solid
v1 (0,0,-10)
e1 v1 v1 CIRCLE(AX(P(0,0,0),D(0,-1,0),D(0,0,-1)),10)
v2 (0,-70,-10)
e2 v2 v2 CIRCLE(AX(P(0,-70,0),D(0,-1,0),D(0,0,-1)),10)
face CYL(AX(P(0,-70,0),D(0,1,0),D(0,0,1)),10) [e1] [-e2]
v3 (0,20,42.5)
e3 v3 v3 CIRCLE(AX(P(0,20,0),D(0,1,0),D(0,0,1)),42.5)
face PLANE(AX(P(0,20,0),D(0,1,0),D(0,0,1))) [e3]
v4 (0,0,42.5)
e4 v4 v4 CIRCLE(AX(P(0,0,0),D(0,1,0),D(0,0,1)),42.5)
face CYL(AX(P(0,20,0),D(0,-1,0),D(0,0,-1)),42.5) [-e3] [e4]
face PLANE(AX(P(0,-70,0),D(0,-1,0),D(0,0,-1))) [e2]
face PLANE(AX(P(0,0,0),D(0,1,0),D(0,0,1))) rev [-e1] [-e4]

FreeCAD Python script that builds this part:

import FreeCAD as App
import Part
import Sketcher
Q = App.Units.Quantity

doc = App.newDocument("Part")
params = doc.addObject("Spreadsheet::Sheet", "Params")
for row, (alias, value) in enumerate([
    ("sketch1_diameter", "85 mm"),
    ("pad1_length", "20 mm"),
    ("sketch2_diameter", "20 mm"),
    ("pad2_length", "70 mm"),
], start=1):
    params.set(f"A{row}", alias)
    params.set(f"B{row}", "=" + value)
    params.setAlias(f"B{row}", alias)

body = doc.addObject("PartDesign::Body", "Body")

sketch1 = body.newObject("Sketcher::SketchObject", "Sketch")
sketch1.AttachmentSupport = (doc.getObject("XZ_Plane"), [""])
sketch1.MapMode = "FlatFace"
sketch1.addGeometry(Part.Circle(App.Vector(0, 0, 0), App.Vector(0, 0, 1), 42.5), False)
sketch1.addConstraint(Sketcher.Constraint("Coincident", 0, 3, -1, 1))
sketch1.addConstraint(Sketcher.Constraint("Diameter", 0, Q("85 mm")))
sketch1.setExpression("Constraints[1]", "Params.sketch1_diameter")
pad1 = body.newObject("PartDesign::Pad", "Pad")
pad1.Profile = sketch1
pad1.setExpression("Length", "Params.pad1_length")
pad1.Reversed = True

sketch2 = body.newObject("Sketcher::SketchObject", "Sketch001")
sketch2.AttachmentSupport = (doc.getObject("XZ_Plane"), [""])
sketch2.MapMode = "FlatFace"
sketch2.addGeometry(Part.Circle(App.Vector(0, 0, 0), App.Vector(0, 0, 1), 10), False)
sketch2.addConstraint(Sketcher.Constraint("Coincident", 0, 3, -1, 1))
sketch2.addConstraint(Sketcher.Constraint("Diameter", 0, Q("20 mm")))
sketch2.setExpression("Constraints[1]", "Params.sketch2_diameter")
pad2 = body.newObject("PartDesign::Pad", "Pad001")
pad2.Profile = sketch2
pad2.setExpression("Length", "Params.pad2_length")

doc.recompute()
